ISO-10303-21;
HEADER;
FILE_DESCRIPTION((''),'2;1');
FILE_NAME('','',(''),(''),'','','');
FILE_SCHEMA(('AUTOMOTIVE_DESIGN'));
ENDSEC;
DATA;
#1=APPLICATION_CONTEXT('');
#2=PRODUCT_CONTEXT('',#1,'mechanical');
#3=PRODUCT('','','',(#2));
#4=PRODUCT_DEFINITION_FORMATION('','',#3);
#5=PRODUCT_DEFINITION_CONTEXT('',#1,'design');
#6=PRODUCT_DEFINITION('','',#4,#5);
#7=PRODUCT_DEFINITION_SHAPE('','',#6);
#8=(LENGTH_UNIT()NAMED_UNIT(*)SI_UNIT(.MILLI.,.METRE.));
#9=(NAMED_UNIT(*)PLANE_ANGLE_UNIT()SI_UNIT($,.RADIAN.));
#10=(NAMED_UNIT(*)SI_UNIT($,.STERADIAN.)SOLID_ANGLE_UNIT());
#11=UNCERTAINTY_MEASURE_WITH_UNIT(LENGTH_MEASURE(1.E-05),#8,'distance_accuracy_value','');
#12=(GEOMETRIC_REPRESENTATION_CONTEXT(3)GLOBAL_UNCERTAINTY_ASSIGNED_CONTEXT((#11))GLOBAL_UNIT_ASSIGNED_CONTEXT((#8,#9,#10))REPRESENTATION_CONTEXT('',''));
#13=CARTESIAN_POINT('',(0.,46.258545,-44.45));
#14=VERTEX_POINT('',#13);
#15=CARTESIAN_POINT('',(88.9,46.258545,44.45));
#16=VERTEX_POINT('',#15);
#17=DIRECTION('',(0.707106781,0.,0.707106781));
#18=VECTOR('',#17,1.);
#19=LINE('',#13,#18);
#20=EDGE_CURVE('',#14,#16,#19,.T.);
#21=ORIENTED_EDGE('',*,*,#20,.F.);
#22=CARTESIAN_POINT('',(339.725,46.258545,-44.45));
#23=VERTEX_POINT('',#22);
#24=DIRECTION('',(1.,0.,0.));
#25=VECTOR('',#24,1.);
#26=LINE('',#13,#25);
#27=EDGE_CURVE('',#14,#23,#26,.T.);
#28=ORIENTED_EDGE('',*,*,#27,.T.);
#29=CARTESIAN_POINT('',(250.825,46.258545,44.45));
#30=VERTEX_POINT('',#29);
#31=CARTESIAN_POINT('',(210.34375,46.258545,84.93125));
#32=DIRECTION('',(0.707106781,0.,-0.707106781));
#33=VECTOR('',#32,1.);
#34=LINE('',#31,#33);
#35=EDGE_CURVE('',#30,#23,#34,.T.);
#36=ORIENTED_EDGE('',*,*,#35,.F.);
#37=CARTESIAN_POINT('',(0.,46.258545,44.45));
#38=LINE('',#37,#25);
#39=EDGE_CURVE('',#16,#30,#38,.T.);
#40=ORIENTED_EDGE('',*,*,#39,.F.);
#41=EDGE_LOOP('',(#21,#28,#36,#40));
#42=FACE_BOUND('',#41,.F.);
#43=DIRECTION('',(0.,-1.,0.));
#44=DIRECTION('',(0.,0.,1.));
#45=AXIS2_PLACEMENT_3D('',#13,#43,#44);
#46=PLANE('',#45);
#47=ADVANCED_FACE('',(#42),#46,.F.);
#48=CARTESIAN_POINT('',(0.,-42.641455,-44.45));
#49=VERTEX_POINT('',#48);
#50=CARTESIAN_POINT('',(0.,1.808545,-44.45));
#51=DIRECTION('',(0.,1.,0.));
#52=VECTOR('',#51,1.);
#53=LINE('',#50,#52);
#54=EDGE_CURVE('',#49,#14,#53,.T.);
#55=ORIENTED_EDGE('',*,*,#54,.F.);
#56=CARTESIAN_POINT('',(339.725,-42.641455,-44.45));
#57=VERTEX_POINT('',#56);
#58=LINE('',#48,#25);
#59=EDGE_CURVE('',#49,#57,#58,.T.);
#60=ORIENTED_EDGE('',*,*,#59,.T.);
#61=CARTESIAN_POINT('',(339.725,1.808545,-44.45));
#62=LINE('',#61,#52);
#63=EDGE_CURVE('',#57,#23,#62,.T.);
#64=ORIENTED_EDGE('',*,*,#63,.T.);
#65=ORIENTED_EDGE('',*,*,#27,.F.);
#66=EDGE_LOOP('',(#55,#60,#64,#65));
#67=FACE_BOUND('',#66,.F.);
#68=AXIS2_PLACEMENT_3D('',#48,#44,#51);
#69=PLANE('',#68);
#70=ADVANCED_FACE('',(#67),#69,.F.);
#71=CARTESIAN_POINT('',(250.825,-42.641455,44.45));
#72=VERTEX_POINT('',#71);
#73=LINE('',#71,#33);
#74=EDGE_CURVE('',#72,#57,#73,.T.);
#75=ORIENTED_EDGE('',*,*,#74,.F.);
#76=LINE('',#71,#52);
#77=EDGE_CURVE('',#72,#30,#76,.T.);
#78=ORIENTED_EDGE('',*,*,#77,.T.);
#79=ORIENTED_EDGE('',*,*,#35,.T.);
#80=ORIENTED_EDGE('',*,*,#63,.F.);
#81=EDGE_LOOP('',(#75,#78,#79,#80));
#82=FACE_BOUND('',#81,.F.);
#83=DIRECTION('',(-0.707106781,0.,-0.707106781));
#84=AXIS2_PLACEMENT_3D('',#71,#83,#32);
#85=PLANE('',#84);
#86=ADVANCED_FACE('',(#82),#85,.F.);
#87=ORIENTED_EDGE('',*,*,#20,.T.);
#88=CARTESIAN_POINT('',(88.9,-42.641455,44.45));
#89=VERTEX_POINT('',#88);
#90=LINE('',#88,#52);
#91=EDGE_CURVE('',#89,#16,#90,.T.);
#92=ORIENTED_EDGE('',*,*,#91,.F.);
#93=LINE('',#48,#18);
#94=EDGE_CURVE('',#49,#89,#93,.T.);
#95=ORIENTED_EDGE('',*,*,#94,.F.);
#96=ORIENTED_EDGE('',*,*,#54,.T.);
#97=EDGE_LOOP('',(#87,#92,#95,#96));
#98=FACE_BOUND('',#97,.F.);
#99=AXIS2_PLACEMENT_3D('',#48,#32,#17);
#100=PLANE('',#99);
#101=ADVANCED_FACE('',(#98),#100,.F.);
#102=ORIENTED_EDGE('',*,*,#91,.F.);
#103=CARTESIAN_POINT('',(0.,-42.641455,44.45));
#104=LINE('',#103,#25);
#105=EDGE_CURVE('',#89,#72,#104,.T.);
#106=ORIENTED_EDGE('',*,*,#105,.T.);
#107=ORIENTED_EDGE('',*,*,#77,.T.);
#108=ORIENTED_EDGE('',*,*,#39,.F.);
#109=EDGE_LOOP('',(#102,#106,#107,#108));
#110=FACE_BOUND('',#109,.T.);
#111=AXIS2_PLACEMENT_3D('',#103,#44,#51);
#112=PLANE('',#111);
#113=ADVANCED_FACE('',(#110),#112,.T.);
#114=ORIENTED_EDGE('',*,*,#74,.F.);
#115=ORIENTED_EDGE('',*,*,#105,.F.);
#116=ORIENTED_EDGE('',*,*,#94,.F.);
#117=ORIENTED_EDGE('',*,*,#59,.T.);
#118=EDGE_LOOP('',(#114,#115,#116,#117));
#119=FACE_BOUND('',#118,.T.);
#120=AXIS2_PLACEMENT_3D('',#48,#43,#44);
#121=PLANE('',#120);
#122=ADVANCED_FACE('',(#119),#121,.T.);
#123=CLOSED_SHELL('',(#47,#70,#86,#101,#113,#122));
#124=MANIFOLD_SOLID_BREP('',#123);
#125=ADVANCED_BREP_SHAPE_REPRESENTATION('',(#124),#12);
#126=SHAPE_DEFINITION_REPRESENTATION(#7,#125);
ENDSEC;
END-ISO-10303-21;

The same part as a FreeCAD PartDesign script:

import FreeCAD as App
import Part
import Sketcher

V = App.Vector
Q = App.Units.Quantity


def add_polygon(sketch, points):
    """Adds a closed chain of lines whose ends are joined by coincident constraints."""
    first, n = sketch.GeometryCount, len(points)
    for a, b in zip(points, points[1:] + points[:1]):
        sketch.addGeometry(Part.LineSegment(App.Vector(*a, 0), App.Vector(*b, 0)), False)
    for i in range(n):
        sketch.addConstraint(Sketcher.Constraint("Coincident", first + i, 2, first + (i + 1) % n, 1))

doc = App.newDocument("Part")
body = doc.addObject("PartDesign::Body", "Body")

sketch1 = body.newObject("Sketcher::SketchObject", "Sketch")
sketch1.AttachmentSupport = (doc.getObject("YZ_Plane"), [""])
sketch1.MapMode = "FlatFace"
add_polygon(sketch1, [(-42.641455, 44.45), (-42.641455, -44.45), (46.258545, -44.45), (46.258545, 44.45)])
sketch1.addConstraint(Sketcher.Constraint("Vertical", 0))
sketch1.addConstraint(Sketcher.Constraint("Horizontal", 1))
sketch1.addConstraint(Sketcher.Constraint("Vertical", 2))
sketch1.addConstraint(Sketcher.Constraint("Horizontal", 3))
sketch1.addConstraint(Sketcher.Constraint("Equal", 3, 0))
sketch1.addConstraint(Sketcher.Constraint("DistanceX", 1, 1, 1, 2, Q("3.5 in")))
sketch1.addConstraint(Sketcher.Constraint("DistanceY", 0, 2, -1, 1, Q("1.75 in")))
sketch1.addConstraint(Sketcher.Constraint("DistanceX", 0, 2, -1, 1, 42.641455))
pad1 = body.newObject("PartDesign::Pad", "Pad")
pad1.Profile = sketch1
pad1.Length = Q("13.375 in")

sketch2 = body.newObject("Sketcher::SketchObject", "Sketch001")
sketch2.AttachmentSupport = (doc.getObject("XZ_Plane"), [""])
sketch2.MapMode = "FlatFace"
sketch2.AttachmentOffset = App.Placement(V(0, 0, 42.641455), App.Rotation())
add_polygon(sketch2, [(0, 44.45), (0, -44.45), (88.9, 44.45)])
sketch2.addConstraint(Sketcher.Constraint("Vertical", 0))
sketch2.addConstraint(Sketcher.Constraint("Horizontal", 2))
sketch2.addConstraint(Sketcher.Constraint("Symmetric", 0, 2, 2, 2, -1, 1))
sketch2.addConstraint(Sketcher.Constraint("Equal", 2, 0))
sketch2.addConstraint(Sketcher.Constraint("DistanceX", 2, 2, 2, 1, Q("3.5 in")))
pocket1 = body.newObject("PartDesign::Pocket", "Pocket")
pocket1.Profile = sketch2
pocket1.Type = "ThroughAll"

sketch3 = body.newObject("Sketcher::SketchObject", "Sketch002")
sketch3.AttachmentSupport = (doc.getObject("XZ_Plane"), [""])
sketch3.MapMode = "FlatFace"
sketch3.AttachmentOffset = App.Placement(V(0, 0, 42.641455), App.Rotation())
add_polygon(sketch3, [(250.825, 44.45), (339.725, -44.45), (339.725, 44.45)])
sketch3.addConstraint(Sketcher.Constraint("Vertical", 1))
sketch3.addConstraint(Sketcher.Constraint("Horizontal", 2))
sketch3.addConstraint(Sketcher.Constraint("Equal", 2, 1))
sketch3.addConstraint(Sketcher.Constraint("DistanceX", 2, 2, 2, 1, Q("3.5 in")))
sketch3.addConstraint(Sketcher.Constraint("DistanceY", 0, 2, -1, 1, Q("1.75 in")))
sketch3.addConstraint(Sketcher.Constraint("DistanceX", -1, 1, 0, 2, Q("13.375 in")))
pocket2 = body.newObject("PartDesign::Pocket", "Pocket001")
pocket2.Profile = sketch3
pocket2.Type = "ThroughAll"

doc.recompute()
